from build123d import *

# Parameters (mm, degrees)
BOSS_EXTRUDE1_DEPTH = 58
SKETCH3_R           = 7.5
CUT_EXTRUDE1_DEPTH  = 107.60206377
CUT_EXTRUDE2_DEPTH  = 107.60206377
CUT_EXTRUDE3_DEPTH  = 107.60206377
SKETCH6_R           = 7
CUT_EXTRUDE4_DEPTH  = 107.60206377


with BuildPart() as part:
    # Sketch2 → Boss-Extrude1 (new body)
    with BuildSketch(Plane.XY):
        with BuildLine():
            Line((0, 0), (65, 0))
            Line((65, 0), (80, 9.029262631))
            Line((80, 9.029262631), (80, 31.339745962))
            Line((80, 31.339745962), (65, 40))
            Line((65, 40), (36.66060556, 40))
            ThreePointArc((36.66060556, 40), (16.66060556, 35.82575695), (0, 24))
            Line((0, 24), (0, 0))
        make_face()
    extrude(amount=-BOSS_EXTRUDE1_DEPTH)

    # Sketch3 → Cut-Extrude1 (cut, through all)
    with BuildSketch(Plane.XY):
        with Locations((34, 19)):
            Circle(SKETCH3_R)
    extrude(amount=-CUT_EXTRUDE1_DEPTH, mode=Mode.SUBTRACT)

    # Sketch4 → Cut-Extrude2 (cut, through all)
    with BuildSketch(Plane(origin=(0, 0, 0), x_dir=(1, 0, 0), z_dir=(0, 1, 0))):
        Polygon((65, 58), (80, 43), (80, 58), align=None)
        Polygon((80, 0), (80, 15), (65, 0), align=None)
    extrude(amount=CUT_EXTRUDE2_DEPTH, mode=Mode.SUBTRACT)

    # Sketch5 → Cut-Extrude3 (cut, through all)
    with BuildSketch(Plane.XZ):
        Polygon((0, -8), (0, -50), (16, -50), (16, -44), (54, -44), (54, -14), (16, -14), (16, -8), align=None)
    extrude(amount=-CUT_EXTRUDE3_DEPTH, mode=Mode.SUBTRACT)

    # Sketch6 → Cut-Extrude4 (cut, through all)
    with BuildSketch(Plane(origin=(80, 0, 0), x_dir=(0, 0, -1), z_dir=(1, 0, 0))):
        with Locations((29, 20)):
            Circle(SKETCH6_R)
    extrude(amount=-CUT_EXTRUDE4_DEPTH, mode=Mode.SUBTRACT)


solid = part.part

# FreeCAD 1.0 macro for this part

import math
import FreeCAD as App
import Part
import Sketcher
from FreeCAD import Vector
Q = App.Units.Quantity


def add_polygon(sketch, points):
    """Adds a closed chain of lines whose ends are joined by coincident constraints."""
    first, n = sketch.GeometryCount, len(points)
    for a, b in zip(points, points[1:] + points[:1]):
        sketch.addGeometry(Part.LineSegment(App.Vector(*a, 0), App.Vector(*b, 0)), False)
    for i in range(n):
        sketch.addConstraint(Sketcher.Constraint("Coincident", first + i, 2, first + (i + 1) % n, 1))

doc = App.newDocument("Part")
body = doc.addObject("PartDesign::Body", "Body")

# Sketch on XY plane
sketch1 = doc.addObject("Sketcher::SketchObject", "Sketch")
body.addObject(sketch1)
sketch1.AttachmentSupport = (doc.XY_Plane, [""])
sketch1.MapMode = "FlatFace"
sketch1.addGeometry(Part.LineSegment(Vector(0, 0, 0), Vector(65, 0, 0)), False)
sketch1.addGeometry(Part.LineSegment(Vector(65, 0, 0), Vector(80, 9, 0)), False)
sketch1.addGeometry(Part.LineSegment(Vector(80, 9, 0), Vector(80, 31, 0)), False)
sketch1.addGeometry(Part.LineSegment(Vector(80, 31, 0), Vector(65, 40, 0)), False)
sketch1.addGeometry(Part.LineSegment(Vector(65, 40, 0), Vector(37, 40, 0)), False)
sketch1.addGeometry(Part.ArcOfCircle(Part.Circle(Vector(37, -10, 0), Vector(0, 0, 1), 50), math.radians(90), math.radians(137)), False)
sketch1.addGeometry(Part.LineSegment(Vector(0, 24, 0), Vector(0, 0, 0)), False)
sketch1.addConstraint(Sketcher.Constraint("Coincident", 0, 2, 1, 1))
sketch1.addConstraint(Sketcher.Constraint("Coincident", 1, 2, 2, 1))
sketch1.addConstraint(Sketcher.Constraint("Coincident", 2, 2, 3, 1))
sketch1.addConstraint(Sketcher.Constraint("Coincident", 3, 2, 4, 1))
sketch1.addConstraint(Sketcher.Constraint("Tangent", 4, 2, 5, 1))
sketch1.addConstraint(Sketcher.Constraint("Coincident", 5, 2, 6, 1))
sketch1.addConstraint(Sketcher.Constraint("Coincident", 6, 2, 0, 1))
sketch1.addConstraint(Sketcher.Constraint("Horizontal", 0))
sketch1.addConstraint(Sketcher.Constraint("Vertical", 2))
sketch1.addConstraint(Sketcher.Constraint("Horizontal", 4))
sketch1.addConstraint(Sketcher.Constraint("Vertical", 6))
sketch1.addConstraint(Sketcher.Constraint("Coincident", 6, 2, -1, 1))
sketch1.addConstraint(Sketcher.Constraint("Vertical", 0, 2, 3, 2))
sketch1.addConstraint(Sketcher.Constraint("Radius", 5, Q("50 mm")))
sketch1.addConstraint(Sketcher.Constraint("DistanceX", 0, 1, 0, 2, Q("65 mm")))
sketch1.addConstraint(Sketcher.Constraint("DistanceY", 6, 2, 6, 1, Q("24 mm")))
sketch1.addConstraint(Sketcher.Constraint("Angle", 3, Q("150 deg")))
sketch1.addConstraint(Sketcher.Constraint("DistanceY", 5, 3, -1, 1, Q("10 mm")))
sketch1.addConstraint(Sketcher.Constraint("DistanceX", -1, 1, 1, 2, Q("80 mm")))
sketch1.addConstraint(Sketcher.Constraint("Distance", 1, Q("17.507929 mm")))
pad1 = doc.addObject("PartDesign::Pad", "Pad")
body.addObject(pad1)
pad1.Profile = sketch1
pad1.Length = 58
pad1.Reversed = True

# Sketch on XY plane
sketch2 = doc.addObject("Sketcher::SketchObject", "Sketch001")
body.addObject(sketch2)
sketch2.AttachmentSupport = (doc.XY_Plane, [""])
sketch2.MapMode = "FlatFace"
sketch2.addGeometry(Part.Circle(Vector(34, 19, 0), Vector(0, 0, 1), 8), False)
sketch2.addConstraint(Sketcher.Constraint("Diameter", 0, Q("15 mm")))
sketch2.addConstraint(Sketcher.Constraint("DistanceX", -1, 1, 0, 3, Q("34 mm")))
sketch2.addConstraint(Sketcher.Constraint("DistanceY", -1, 1, 0, 3, Q("19 mm")))
pocket1 = doc.addObject("PartDesign::Pocket", "Pocket")
body.addObject(pocket1)
pocket1.Profile = sketch2
pocket1.Type = "ThroughAll"

# Sketch on XZ plane
sketch3 = doc.addObject("Sketcher::SketchObject", "Sketch002")
body.addObject(sketch3)
sketch3.AttachmentSupport = (doc.XZ_Plane, [""])
sketch3.MapMode = "FlatFace"
add_polygon(sketch3, [(65, -58), (80, -43), (80, -58)])  # lines 0-2
add_polygon(sketch3, [(80, 0), (80, -15), (65, 0)])  # lines 3-5
sketch3.addConstraint(Sketcher.Constraint("Vertical", 1))
sketch3.addConstraint(Sketcher.Constraint("Horizontal", 2))
sketch3.addConstraint(Sketcher.Constraint("Vertical", 3))
sketch3.addConstraint(Sketcher.Constraint("Horizontal", 5))
sketch3.addConstraint(Sketcher.Constraint("PointOnObject", 4, 2, -1))
sketch3.addConstraint(Sketcher.Constraint("Perpendicular", 0, 4))
sketch3.addConstraint(Sketcher.Constraint("Vertical", 1, 2, 3, 2))
sketch3.addConstraint(Sketcher.Constraint("Vertical", 2, 2, 4, 2))
sketch3.addConstraint(Sketcher.Constraint("Equal", 5, 1))
sketch3.addConstraint(Sketcher.Constraint("DistanceX", 2, 2, 2, 1, Q("15 mm")))
sketch3.addConstraint(Sketcher.Constraint("DistanceX", -1, 1, 0, 2, Q("80 mm")))
sketch3.addConstraint(Sketcher.Constraint("DistanceY", 0, 2, -1, 1, Q("43 mm")))
pocket2 = doc.addObject("PartDesign::Pocket", "Pocket001")
body.addObject(pocket2)
pocket2.Profile = sketch3
pocket2.Type = "ThroughAll"

# Sketch on XZ plane
sketch4 = doc.addObject("Sketcher::SketchObject", "Sketch003")
body.addObject(sketch4)
sketch4.AttachmentSupport = (doc.XZ_Plane, [""])
sketch4.MapMode = "FlatFace"
add_polygon(sketch4, [(0, -8), (0, -50), (16, -50), (16, -44), (54, -44), (54, -14), (16, -14), (16, -8)])  # lines 0-7
sketch4.addConstraint(Sketcher.Constraint("Vertical", 0))
sketch4.addConstraint(Sketcher.Constraint("Horizontal", 1))
sketch4.addConstraint(Sketcher.Constraint("Vertical", 2))
sketch4.addConstraint(Sketcher.Constraint("Horizontal", 3))
sketch4.addConstraint(Sketcher.Constraint("Vertical", 4))
sketch4.addConstraint(Sketcher.Constraint("Horizontal", 5))
sketch4.addConstraint(Sketcher.Constraint("Vertical", 6))
sketch4.addConstraint(Sketcher.Constraint("Horizontal", 7))
sketch4.addConstraint(Sketcher.Constraint("PointOnObject", 0, 2, -2))
sketch4.addConstraint(Sketcher.Constraint("Vertical", 2, 2, 5, 2))
sketch4.addConstraint(Sketcher.Constraint("Equal", 2, 6))
sketch4.addConstraint(Sketcher.Constraint("DistanceX", 1, 1, 1, 2, Q("16 mm")))
sketch4.addConstraint(Sketcher.Constraint("DistanceX", 3, 1, 3, 2, Q("38 mm")))
sketch4.addConstraint(Sketcher.Constraint("DistanceY", 0, 2, 0, 1, Q("42 mm")))
sketch4.addConstraint(Sketcher.Constraint("DistanceY", 2, 1, 2, 2, Q("6 mm")))
sketch4.addConstraint(Sketcher.Constraint("DistanceY", 0, 2, -1, 1, Q("50 mm")))
pocket3 = doc.addObject("PartDesign::Pocket", "Pocket002")
body.addObject(pocket3)
pocket3.Profile = sketch4
pocket3.Type = "ThroughAll"

# Sketch on YZ plane
sketch5 = doc.addObject("Sketcher::SketchObject", "Sketch004")
body.addObject(sketch5)
sketch5.AttachmentSupport = (doc.YZ_Plane, [""])
sketch5.MapMode = "FlatFace"
sketch5.AttachmentOffset = App.Placement(Vector(0, 0, 80), App.Rotation())
sketch5.addGeometry(Part.Circle(Vector(20, -29, 0), Vector(0, 0, 1), 7), False)
sketch5.addConstraint(Sketcher.Constraint("Diameter", 0, Q("14 mm")))
sketch5.addConstraint(Sketcher.Constraint("DistanceX", -1, 1, 0, 3, Q("20 mm")))
sketch5.addConstraint(Sketcher.Constraint("DistanceY", 0, 3, -1, 1, Q("29 mm")))
pocket4 = doc.addObject("PartDesign::Pocket", "Pocket003")
body.addObject(pocket4)
pocket4.Profile = sketch5
pocket4.Type = "ThroughAll"

doc.recompute()
